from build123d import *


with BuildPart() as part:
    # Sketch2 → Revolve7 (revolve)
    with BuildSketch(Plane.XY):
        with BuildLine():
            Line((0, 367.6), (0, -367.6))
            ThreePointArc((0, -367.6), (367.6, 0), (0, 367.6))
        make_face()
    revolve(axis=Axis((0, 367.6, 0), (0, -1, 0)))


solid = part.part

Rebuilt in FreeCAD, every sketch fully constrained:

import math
import FreeCAD as App
import Part
import Sketcher
from FreeCAD import Vector
Q = App.Units.Quantity

doc = App.newDocument("Part")
body = doc.addObject("PartDesign::Body", "Body")

sketch1 = body.newObject("Sketcher::SketchObject", "Sketch")
sketch1.AttachmentSupport = (doc.getObject("XY_Plane"), [""])
sketch1.MapMode = "FlatFace"
sketch1.addGeometry([
    Part.LineSegment(Vector(0, 367.6, 0), Vector(0, -367.6, 0)),
    Part.ArcOfCircle(Part.Circle(Vector(0, 0, 0), Vector(0, 0, 1), 367.6), math.radians(-90), math.radians(90)),
], False)
sketch1.addConstraint([
    Sketcher.Constraint("Coincident", 0, 1, 1, 2),
    Sketcher.Constraint("Coincident", 1, 1, 0, 2),
    Sketcher.Constraint("Vertical", 0),
    Sketcher.Constraint("Coincident", 1, 3, -1, 1),
    Sketcher.Constraint("PointOnObject", 0, 1, -2),
    Sketcher.Constraint("Radius", 1, Q("367.6 mm")),
])
revolution = body.newObject("PartDesign::Revolution", "Revolution")
revolution.Profile = sketch1
revolution.ReferenceAxis = (sketch1, ["V_Axis"])
revolution.Angle = 360

doc.recompute()
